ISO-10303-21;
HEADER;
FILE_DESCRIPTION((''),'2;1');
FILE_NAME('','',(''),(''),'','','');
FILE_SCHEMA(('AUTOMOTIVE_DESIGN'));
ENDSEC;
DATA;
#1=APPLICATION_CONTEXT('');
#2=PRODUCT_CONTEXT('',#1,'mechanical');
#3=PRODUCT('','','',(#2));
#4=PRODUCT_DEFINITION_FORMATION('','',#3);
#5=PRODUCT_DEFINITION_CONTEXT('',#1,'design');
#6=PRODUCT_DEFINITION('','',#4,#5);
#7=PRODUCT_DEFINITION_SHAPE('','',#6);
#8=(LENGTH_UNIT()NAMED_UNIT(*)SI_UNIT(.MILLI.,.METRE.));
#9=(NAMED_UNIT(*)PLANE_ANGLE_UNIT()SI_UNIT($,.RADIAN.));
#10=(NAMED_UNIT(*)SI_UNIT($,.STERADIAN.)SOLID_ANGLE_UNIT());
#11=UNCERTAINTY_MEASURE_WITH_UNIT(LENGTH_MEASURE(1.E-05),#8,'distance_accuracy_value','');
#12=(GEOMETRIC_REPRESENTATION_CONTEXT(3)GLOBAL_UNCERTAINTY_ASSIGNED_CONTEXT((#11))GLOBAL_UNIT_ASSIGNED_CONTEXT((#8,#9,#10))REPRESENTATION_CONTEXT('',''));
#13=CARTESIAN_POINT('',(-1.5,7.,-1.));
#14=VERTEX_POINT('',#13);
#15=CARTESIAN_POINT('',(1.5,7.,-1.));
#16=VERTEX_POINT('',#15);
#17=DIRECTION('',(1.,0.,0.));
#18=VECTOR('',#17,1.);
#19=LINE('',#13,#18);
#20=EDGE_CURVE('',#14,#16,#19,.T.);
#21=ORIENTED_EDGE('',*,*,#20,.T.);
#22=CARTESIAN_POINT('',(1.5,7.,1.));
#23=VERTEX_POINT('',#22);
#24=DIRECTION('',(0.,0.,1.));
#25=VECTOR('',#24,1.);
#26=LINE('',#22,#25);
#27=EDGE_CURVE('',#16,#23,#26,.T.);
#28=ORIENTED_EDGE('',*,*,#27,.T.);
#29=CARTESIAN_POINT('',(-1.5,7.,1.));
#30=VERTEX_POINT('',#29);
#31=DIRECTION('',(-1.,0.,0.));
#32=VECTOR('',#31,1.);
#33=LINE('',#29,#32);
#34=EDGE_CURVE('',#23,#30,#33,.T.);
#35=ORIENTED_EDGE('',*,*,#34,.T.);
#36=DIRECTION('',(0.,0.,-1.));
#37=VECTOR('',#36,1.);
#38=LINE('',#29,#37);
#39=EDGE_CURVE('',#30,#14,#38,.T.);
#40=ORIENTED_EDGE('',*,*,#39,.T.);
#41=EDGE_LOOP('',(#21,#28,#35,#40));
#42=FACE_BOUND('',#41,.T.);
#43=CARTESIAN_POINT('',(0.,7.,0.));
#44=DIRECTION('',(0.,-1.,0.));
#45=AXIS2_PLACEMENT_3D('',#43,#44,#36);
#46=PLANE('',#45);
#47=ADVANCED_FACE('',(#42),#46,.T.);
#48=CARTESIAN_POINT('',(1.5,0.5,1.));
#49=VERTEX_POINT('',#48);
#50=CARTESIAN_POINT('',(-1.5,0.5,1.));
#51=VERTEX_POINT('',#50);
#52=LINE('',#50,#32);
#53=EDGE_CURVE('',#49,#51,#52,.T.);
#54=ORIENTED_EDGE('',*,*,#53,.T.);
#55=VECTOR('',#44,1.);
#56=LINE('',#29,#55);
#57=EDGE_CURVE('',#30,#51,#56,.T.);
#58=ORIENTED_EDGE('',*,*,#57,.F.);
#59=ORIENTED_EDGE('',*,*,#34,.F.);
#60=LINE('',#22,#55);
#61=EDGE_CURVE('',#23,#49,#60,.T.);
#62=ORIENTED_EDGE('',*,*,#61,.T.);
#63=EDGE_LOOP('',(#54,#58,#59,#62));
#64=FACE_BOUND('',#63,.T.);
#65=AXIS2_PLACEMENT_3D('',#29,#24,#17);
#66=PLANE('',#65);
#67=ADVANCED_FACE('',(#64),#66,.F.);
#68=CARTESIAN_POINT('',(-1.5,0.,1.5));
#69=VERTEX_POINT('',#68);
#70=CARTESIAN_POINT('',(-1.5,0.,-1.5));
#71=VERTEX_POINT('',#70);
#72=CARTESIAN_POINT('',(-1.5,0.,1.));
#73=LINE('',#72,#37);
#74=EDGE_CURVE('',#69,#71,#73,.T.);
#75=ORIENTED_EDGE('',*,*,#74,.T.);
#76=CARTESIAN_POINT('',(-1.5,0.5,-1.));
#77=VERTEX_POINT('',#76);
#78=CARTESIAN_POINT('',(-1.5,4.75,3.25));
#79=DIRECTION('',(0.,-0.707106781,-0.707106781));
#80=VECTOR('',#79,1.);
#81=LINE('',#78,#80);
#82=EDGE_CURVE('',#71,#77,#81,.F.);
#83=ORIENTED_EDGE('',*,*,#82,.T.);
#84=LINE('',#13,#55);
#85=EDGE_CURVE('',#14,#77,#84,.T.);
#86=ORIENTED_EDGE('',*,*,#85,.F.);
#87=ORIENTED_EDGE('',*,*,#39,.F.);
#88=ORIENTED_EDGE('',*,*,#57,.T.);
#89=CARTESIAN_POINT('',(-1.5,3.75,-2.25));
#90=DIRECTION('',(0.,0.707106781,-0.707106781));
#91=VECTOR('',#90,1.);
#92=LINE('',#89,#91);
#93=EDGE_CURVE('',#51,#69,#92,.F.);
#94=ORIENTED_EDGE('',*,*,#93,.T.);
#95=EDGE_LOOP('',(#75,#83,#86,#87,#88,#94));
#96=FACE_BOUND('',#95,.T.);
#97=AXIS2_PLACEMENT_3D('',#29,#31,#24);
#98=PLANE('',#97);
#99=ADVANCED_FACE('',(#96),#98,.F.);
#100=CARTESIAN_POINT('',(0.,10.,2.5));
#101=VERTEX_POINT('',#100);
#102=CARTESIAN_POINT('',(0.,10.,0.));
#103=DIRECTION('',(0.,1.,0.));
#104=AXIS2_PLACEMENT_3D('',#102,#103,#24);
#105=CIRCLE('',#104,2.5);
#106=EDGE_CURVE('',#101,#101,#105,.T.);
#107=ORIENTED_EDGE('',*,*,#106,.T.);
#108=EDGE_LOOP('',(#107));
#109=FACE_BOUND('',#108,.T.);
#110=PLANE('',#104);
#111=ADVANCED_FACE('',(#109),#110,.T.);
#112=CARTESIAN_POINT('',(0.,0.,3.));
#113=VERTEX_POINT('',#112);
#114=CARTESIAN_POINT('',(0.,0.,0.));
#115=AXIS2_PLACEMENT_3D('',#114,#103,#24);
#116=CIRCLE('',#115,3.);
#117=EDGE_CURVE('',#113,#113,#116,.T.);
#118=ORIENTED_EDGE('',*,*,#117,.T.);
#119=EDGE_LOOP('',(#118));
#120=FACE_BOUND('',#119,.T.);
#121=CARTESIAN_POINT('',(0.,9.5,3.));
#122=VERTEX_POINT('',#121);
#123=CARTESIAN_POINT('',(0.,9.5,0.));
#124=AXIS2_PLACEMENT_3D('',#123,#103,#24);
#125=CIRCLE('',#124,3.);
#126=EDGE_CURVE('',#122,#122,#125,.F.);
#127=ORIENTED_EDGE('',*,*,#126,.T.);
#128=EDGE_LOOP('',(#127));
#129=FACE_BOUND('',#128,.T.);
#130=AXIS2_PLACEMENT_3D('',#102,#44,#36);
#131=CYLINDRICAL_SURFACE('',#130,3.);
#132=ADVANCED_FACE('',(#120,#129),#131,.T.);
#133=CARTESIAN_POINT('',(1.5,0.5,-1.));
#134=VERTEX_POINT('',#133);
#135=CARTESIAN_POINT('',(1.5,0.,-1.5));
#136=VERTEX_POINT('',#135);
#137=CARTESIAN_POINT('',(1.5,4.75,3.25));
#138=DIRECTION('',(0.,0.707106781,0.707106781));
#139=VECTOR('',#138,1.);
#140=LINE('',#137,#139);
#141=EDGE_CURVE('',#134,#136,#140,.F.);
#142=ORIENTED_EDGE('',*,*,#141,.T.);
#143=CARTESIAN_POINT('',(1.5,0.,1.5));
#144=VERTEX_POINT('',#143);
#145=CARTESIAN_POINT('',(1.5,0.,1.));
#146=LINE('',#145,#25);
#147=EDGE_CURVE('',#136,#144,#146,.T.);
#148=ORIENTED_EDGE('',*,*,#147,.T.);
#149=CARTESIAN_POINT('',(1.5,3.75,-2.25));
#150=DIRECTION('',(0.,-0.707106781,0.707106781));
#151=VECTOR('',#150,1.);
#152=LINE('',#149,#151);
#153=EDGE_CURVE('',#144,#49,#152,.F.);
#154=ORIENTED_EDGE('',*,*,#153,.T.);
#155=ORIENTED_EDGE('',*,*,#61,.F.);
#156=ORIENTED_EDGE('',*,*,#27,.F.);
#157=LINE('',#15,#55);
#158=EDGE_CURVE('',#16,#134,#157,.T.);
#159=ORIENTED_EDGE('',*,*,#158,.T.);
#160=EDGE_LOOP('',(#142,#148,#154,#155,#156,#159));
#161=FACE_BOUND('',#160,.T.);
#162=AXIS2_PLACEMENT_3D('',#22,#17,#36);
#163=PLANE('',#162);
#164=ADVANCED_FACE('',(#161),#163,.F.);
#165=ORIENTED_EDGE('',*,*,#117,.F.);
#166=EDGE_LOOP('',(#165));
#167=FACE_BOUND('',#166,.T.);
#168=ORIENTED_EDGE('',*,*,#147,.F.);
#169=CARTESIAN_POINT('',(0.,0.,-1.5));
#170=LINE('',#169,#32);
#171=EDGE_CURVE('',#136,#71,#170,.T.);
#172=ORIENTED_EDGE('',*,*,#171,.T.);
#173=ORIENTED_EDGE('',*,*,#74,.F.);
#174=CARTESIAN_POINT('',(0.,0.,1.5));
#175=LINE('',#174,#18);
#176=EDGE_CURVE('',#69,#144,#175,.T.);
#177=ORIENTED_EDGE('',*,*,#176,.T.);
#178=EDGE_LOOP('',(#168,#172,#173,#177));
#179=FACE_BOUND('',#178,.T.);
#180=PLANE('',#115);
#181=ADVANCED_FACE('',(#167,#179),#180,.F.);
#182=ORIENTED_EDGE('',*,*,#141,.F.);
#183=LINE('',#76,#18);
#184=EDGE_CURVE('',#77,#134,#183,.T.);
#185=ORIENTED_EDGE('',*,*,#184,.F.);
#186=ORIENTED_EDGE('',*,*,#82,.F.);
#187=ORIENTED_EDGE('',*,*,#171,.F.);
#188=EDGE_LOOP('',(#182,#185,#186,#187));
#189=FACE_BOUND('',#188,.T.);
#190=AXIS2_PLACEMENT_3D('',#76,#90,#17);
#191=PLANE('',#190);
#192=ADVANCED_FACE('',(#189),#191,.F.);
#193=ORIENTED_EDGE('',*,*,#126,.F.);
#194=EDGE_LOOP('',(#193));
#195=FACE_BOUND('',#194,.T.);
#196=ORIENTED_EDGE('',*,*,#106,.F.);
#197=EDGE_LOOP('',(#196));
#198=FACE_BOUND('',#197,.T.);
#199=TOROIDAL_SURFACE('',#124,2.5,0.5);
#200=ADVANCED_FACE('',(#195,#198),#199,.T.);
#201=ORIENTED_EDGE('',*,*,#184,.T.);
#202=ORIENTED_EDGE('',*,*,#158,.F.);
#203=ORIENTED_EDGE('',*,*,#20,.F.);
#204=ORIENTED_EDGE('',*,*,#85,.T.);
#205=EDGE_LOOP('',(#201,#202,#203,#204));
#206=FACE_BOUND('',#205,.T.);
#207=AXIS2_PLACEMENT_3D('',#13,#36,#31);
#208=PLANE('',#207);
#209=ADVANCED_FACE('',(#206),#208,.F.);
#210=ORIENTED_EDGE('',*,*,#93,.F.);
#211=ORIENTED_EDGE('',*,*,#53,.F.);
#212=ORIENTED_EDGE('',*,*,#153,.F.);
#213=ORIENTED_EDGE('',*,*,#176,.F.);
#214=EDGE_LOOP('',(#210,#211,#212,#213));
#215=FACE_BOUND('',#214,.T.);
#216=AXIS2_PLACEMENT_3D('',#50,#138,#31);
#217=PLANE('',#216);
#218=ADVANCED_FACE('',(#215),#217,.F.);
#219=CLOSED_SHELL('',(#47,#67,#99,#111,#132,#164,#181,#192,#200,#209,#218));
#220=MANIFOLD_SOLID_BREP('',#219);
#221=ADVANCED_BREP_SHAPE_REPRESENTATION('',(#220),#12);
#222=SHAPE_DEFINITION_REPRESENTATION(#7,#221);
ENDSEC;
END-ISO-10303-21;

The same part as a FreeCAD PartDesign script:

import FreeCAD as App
import Part
import Sketcher
from FreeCAD import Vector


def edges_at(feature, points):
    """Names of the edges that pass closest to the given points."""
    edges = feature.Shape.Edges
    near = lambda p: min(range(len(edges)), key=lambda i: edges[i].distToShape(Part.Vertex(*p))[0])
    return sorted({f"Edge{near(p) + 1}" for p in points})


def add_polygon(sketch, points):
    """Adds a closed chain of lines whose ends are joined by coincident constraints."""
    first, n = sketch.GeometryCount, len(points)
    for a, b in zip(points, points[1:] + points[:1]):
        sketch.addGeometry(Part.LineSegment(App.Vector(*a, 0), App.Vector(*b, 0)), False)
    for i in range(n):
        sketch.addConstraint(Sketcher.Constraint("Coincident", first + i, 2, first + (i + 1) % n, 1))

doc = App.newDocument("Part")
body = doc.addObject("PartDesign::Body", "Body")

sketch1 = body.newObject("Sketcher::SketchObject", "Sketch")
sketch1.AttachmentSupport = (doc.getObject("XZ_Plane"), [""])
sketch1.MapMode = "FlatFace"
sketch1.addGeometry(Part.Circle(Vector(0, 0, 0), Vector(0, 0, 1), 3), False)
sketch1.addConstraint([
    Sketcher.Constraint("Coincident", 0, 3, -1, 1),
    Sketcher.Constraint("Diameter", 0, 6.0),
])
pad1 = body.newObject("PartDesign::Pad", "Pad")
pad1.Profile = sketch1
pad1.Length = 10
pad1.Reversed = True

sketch2 = body.newObject("Sketcher::SketchObject", "Sketch001")
sketch2.AttachmentSupport = (doc.getObject("XZ_Plane"), [""])
sketch2.MapMode = "FlatFace"
add_polygon(sketch2, [(-1.5, 1), (-1.5, -1), (1.5, -1), (1.5, 1)])
sketch2.addConstraint([
    Sketcher.Constraint("Vertical", 0),
    Sketcher.Constraint("Horizontal", 1),
    Sketcher.Constraint("Vertical", 2),
    Sketcher.Constraint("Horizontal", 3),
    Sketcher.Constraint("Symmetric", 0, 2, 2, 2, -1, 1),
    Sketcher.Constraint("DistanceX", 1, 1, 1, 2, 3.0),
    Sketcher.Constraint("DistanceY", 0, 2, 0, 1, 2.0),
])
pocket1 = body.newObject("PartDesign::Pocket", "Pocket")
pocket1.Profile = sketch2
pocket1.Length = 7
doc.recompute()

chamfer = body.newObject("PartDesign::Chamfer", "Chamfer")
chamfer.Base = (pocket1, edges_at(pocket1, [(0, 0, -1), (0, 0, 1)]))
chamfer.Size = 0.5
doc.recompute()

fillet = body.newObject("PartDesign::Fillet", "Fillet")
fillet.Base = (chamfer, edges_at(chamfer, [(0, 10, -3)]))
fillet.Radius = 0.5

doc.recompute()
